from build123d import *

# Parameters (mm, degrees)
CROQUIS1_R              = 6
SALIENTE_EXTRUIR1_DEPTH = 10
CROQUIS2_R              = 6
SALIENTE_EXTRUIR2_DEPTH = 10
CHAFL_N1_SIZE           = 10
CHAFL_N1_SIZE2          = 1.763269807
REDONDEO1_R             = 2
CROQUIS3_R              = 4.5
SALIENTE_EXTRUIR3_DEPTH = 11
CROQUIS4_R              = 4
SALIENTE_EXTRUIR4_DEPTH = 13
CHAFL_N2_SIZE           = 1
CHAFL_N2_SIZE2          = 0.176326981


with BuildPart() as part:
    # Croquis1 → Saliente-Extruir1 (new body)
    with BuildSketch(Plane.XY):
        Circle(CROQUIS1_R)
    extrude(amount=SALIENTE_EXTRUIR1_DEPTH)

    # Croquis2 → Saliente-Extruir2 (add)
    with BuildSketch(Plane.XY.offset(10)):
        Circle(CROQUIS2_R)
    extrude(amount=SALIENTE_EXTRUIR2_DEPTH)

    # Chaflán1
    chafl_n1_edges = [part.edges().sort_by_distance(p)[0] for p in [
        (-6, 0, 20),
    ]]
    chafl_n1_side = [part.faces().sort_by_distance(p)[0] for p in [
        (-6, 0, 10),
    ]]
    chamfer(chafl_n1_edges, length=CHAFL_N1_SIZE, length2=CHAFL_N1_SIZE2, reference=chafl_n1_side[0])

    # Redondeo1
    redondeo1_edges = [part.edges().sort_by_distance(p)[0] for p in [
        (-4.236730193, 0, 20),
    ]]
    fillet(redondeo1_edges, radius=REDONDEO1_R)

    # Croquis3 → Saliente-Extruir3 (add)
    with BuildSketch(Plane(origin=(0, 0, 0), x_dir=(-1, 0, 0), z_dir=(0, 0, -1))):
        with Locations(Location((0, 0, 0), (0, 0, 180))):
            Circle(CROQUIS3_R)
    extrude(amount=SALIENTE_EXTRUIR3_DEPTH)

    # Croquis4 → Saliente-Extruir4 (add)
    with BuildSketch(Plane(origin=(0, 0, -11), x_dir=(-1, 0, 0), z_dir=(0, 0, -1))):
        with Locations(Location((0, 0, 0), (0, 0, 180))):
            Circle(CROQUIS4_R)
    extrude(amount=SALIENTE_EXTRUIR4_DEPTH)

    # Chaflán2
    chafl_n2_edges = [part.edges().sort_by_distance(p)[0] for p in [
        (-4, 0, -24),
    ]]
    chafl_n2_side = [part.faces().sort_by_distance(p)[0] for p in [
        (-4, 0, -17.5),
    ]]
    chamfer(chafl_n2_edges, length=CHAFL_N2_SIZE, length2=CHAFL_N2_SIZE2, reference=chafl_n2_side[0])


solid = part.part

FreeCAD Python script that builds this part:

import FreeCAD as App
import Part
import Sketcher

V = App.Vector
Q = App.Units.Quantity


def edges_at(feature, points):
    """Names of the edges that pass closest to the given points."""
    edges = feature.Shape.Edges
    near = lambda p: min(range(len(edges)), key=lambda i: edges[i].distToShape(Part.Vertex(*p))[0])
    return sorted({f"Edge{near(p) + 1}" for p in points})

doc = App.newDocument("Part")
body = doc.addObject("PartDesign::Body", "Body")

sketch1 = body.newObject("Sketcher::SketchObject", "Sketch")
sketch1.AttachmentSupport = (doc.getObject("XY_Plane"), [""])
sketch1.MapMode = "FlatFace"
sketch1.addGeometry(Part.Circle(V(0, 0, 0), V(0, 0, 1), 6), False)
sketch1.addConstraint(Sketcher.Constraint("Coincident", 0, 3, -1, 1))
sketch1.addConstraint(Sketcher.Constraint("Diameter", 0, Q("12 mm")))
pad1 = body.newObject("PartDesign::Pad", "Pad")
pad1.Profile = sketch1
pad1.Length = 10

sketch2 = body.newObject("Sketcher::SketchObject", "Sketch001")
sketch2.AttachmentSupport = (doc.getObject("XY_Plane"), [""])
sketch2.MapMode = "FlatFace"
sketch2.AttachmentOffset = App.Placement(V(0, 0, 10), App.Rotation())
sketch2.addGeometry(Part.Circle(V(0, 0, 0), V(0, 0, 1), 6), False)
sketch2.addConstraint(Sketcher.Constraint("Coincident", 0, 3, -1, 1))
sketch2.addConstraint(Sketcher.Constraint("Diameter", 0, Q("12 mm")))
pad2 = body.newObject("PartDesign::Pad", "Pad001")
pad2.Profile = sketch2
pad2.Length = 10
doc.recompute()

chamfer = body.newObject("PartDesign::Chamfer", "Chamfer")
chamfer.Base = (pad2, edges_at(pad2, [(-6, 0, 20)]))
chamfer.ChamferType = "Two distances"
chamfer.Size = 10
chamfer.Size2 = 1.76327
chamfer.FlipDirection = True
doc.recompute()

fillet = body.newObject("PartDesign::Fillet", "Fillet")
fillet.Base = (chamfer, edges_at(chamfer, [(-4.237, 0, 20)]))
fillet.Radius = 2

sketch3 = body.newObject("Sketcher::SketchObject", "Sketch002")
sketch3.AttachmentSupport = (doc.getObject("XY_Plane"), [""])
sketch3.MapMode = "FlatFace"
sketch3.addGeometry(Part.Circle(V(0, 0, 0), V(0, 0, 1), 4.5), False)
sketch3.addConstraint(Sketcher.Constraint("Coincident", 0, 3, -1, 1))
sketch3.addConstraint(Sketcher.Constraint("Diameter", 0, Q("9 mm")))
pad3 = body.newObject("PartDesign::Pad", "Pad002")
pad3.Profile = sketch3
pad3.Length = 11
pad3.Reversed = True

sketch4 = body.newObject("Sketcher::SketchObject", "Sketch003")
sketch4.AttachmentSupport = (doc.getObject("XY_Plane"), [""])
sketch4.MapMode = "FlatFace"
sketch4.AttachmentOffset = App.Placement(V(0, 0, -11), App.Rotation())
sketch4.addGeometry(Part.Circle(V(0, 0, 0), V(0, 0, 1), 4), False)
sketch4.addConstraint(Sketcher.Constraint("Coincident", 0, 3, -1, 1))
sketch4.addConstraint(Sketcher.Constraint("Diameter", 0, Q("8 mm")))
pad4 = body.newObject("PartDesign::Pad", "Pad003")
pad4.Profile = sketch4
pad4.Length = 13
pad4.Reversed = True
doc.recompute()

chamfer2 = body.newObject("PartDesign::Chamfer", "Chamfer001")
chamfer2.Base = (pad4, edges_at(pad4, [(-4, 0, -24)]))
chamfer2.ChamferType = "Two distances"
chamfer2.Size = 1
chamfer2.Size2 = 0.176327

doc.recompute()
